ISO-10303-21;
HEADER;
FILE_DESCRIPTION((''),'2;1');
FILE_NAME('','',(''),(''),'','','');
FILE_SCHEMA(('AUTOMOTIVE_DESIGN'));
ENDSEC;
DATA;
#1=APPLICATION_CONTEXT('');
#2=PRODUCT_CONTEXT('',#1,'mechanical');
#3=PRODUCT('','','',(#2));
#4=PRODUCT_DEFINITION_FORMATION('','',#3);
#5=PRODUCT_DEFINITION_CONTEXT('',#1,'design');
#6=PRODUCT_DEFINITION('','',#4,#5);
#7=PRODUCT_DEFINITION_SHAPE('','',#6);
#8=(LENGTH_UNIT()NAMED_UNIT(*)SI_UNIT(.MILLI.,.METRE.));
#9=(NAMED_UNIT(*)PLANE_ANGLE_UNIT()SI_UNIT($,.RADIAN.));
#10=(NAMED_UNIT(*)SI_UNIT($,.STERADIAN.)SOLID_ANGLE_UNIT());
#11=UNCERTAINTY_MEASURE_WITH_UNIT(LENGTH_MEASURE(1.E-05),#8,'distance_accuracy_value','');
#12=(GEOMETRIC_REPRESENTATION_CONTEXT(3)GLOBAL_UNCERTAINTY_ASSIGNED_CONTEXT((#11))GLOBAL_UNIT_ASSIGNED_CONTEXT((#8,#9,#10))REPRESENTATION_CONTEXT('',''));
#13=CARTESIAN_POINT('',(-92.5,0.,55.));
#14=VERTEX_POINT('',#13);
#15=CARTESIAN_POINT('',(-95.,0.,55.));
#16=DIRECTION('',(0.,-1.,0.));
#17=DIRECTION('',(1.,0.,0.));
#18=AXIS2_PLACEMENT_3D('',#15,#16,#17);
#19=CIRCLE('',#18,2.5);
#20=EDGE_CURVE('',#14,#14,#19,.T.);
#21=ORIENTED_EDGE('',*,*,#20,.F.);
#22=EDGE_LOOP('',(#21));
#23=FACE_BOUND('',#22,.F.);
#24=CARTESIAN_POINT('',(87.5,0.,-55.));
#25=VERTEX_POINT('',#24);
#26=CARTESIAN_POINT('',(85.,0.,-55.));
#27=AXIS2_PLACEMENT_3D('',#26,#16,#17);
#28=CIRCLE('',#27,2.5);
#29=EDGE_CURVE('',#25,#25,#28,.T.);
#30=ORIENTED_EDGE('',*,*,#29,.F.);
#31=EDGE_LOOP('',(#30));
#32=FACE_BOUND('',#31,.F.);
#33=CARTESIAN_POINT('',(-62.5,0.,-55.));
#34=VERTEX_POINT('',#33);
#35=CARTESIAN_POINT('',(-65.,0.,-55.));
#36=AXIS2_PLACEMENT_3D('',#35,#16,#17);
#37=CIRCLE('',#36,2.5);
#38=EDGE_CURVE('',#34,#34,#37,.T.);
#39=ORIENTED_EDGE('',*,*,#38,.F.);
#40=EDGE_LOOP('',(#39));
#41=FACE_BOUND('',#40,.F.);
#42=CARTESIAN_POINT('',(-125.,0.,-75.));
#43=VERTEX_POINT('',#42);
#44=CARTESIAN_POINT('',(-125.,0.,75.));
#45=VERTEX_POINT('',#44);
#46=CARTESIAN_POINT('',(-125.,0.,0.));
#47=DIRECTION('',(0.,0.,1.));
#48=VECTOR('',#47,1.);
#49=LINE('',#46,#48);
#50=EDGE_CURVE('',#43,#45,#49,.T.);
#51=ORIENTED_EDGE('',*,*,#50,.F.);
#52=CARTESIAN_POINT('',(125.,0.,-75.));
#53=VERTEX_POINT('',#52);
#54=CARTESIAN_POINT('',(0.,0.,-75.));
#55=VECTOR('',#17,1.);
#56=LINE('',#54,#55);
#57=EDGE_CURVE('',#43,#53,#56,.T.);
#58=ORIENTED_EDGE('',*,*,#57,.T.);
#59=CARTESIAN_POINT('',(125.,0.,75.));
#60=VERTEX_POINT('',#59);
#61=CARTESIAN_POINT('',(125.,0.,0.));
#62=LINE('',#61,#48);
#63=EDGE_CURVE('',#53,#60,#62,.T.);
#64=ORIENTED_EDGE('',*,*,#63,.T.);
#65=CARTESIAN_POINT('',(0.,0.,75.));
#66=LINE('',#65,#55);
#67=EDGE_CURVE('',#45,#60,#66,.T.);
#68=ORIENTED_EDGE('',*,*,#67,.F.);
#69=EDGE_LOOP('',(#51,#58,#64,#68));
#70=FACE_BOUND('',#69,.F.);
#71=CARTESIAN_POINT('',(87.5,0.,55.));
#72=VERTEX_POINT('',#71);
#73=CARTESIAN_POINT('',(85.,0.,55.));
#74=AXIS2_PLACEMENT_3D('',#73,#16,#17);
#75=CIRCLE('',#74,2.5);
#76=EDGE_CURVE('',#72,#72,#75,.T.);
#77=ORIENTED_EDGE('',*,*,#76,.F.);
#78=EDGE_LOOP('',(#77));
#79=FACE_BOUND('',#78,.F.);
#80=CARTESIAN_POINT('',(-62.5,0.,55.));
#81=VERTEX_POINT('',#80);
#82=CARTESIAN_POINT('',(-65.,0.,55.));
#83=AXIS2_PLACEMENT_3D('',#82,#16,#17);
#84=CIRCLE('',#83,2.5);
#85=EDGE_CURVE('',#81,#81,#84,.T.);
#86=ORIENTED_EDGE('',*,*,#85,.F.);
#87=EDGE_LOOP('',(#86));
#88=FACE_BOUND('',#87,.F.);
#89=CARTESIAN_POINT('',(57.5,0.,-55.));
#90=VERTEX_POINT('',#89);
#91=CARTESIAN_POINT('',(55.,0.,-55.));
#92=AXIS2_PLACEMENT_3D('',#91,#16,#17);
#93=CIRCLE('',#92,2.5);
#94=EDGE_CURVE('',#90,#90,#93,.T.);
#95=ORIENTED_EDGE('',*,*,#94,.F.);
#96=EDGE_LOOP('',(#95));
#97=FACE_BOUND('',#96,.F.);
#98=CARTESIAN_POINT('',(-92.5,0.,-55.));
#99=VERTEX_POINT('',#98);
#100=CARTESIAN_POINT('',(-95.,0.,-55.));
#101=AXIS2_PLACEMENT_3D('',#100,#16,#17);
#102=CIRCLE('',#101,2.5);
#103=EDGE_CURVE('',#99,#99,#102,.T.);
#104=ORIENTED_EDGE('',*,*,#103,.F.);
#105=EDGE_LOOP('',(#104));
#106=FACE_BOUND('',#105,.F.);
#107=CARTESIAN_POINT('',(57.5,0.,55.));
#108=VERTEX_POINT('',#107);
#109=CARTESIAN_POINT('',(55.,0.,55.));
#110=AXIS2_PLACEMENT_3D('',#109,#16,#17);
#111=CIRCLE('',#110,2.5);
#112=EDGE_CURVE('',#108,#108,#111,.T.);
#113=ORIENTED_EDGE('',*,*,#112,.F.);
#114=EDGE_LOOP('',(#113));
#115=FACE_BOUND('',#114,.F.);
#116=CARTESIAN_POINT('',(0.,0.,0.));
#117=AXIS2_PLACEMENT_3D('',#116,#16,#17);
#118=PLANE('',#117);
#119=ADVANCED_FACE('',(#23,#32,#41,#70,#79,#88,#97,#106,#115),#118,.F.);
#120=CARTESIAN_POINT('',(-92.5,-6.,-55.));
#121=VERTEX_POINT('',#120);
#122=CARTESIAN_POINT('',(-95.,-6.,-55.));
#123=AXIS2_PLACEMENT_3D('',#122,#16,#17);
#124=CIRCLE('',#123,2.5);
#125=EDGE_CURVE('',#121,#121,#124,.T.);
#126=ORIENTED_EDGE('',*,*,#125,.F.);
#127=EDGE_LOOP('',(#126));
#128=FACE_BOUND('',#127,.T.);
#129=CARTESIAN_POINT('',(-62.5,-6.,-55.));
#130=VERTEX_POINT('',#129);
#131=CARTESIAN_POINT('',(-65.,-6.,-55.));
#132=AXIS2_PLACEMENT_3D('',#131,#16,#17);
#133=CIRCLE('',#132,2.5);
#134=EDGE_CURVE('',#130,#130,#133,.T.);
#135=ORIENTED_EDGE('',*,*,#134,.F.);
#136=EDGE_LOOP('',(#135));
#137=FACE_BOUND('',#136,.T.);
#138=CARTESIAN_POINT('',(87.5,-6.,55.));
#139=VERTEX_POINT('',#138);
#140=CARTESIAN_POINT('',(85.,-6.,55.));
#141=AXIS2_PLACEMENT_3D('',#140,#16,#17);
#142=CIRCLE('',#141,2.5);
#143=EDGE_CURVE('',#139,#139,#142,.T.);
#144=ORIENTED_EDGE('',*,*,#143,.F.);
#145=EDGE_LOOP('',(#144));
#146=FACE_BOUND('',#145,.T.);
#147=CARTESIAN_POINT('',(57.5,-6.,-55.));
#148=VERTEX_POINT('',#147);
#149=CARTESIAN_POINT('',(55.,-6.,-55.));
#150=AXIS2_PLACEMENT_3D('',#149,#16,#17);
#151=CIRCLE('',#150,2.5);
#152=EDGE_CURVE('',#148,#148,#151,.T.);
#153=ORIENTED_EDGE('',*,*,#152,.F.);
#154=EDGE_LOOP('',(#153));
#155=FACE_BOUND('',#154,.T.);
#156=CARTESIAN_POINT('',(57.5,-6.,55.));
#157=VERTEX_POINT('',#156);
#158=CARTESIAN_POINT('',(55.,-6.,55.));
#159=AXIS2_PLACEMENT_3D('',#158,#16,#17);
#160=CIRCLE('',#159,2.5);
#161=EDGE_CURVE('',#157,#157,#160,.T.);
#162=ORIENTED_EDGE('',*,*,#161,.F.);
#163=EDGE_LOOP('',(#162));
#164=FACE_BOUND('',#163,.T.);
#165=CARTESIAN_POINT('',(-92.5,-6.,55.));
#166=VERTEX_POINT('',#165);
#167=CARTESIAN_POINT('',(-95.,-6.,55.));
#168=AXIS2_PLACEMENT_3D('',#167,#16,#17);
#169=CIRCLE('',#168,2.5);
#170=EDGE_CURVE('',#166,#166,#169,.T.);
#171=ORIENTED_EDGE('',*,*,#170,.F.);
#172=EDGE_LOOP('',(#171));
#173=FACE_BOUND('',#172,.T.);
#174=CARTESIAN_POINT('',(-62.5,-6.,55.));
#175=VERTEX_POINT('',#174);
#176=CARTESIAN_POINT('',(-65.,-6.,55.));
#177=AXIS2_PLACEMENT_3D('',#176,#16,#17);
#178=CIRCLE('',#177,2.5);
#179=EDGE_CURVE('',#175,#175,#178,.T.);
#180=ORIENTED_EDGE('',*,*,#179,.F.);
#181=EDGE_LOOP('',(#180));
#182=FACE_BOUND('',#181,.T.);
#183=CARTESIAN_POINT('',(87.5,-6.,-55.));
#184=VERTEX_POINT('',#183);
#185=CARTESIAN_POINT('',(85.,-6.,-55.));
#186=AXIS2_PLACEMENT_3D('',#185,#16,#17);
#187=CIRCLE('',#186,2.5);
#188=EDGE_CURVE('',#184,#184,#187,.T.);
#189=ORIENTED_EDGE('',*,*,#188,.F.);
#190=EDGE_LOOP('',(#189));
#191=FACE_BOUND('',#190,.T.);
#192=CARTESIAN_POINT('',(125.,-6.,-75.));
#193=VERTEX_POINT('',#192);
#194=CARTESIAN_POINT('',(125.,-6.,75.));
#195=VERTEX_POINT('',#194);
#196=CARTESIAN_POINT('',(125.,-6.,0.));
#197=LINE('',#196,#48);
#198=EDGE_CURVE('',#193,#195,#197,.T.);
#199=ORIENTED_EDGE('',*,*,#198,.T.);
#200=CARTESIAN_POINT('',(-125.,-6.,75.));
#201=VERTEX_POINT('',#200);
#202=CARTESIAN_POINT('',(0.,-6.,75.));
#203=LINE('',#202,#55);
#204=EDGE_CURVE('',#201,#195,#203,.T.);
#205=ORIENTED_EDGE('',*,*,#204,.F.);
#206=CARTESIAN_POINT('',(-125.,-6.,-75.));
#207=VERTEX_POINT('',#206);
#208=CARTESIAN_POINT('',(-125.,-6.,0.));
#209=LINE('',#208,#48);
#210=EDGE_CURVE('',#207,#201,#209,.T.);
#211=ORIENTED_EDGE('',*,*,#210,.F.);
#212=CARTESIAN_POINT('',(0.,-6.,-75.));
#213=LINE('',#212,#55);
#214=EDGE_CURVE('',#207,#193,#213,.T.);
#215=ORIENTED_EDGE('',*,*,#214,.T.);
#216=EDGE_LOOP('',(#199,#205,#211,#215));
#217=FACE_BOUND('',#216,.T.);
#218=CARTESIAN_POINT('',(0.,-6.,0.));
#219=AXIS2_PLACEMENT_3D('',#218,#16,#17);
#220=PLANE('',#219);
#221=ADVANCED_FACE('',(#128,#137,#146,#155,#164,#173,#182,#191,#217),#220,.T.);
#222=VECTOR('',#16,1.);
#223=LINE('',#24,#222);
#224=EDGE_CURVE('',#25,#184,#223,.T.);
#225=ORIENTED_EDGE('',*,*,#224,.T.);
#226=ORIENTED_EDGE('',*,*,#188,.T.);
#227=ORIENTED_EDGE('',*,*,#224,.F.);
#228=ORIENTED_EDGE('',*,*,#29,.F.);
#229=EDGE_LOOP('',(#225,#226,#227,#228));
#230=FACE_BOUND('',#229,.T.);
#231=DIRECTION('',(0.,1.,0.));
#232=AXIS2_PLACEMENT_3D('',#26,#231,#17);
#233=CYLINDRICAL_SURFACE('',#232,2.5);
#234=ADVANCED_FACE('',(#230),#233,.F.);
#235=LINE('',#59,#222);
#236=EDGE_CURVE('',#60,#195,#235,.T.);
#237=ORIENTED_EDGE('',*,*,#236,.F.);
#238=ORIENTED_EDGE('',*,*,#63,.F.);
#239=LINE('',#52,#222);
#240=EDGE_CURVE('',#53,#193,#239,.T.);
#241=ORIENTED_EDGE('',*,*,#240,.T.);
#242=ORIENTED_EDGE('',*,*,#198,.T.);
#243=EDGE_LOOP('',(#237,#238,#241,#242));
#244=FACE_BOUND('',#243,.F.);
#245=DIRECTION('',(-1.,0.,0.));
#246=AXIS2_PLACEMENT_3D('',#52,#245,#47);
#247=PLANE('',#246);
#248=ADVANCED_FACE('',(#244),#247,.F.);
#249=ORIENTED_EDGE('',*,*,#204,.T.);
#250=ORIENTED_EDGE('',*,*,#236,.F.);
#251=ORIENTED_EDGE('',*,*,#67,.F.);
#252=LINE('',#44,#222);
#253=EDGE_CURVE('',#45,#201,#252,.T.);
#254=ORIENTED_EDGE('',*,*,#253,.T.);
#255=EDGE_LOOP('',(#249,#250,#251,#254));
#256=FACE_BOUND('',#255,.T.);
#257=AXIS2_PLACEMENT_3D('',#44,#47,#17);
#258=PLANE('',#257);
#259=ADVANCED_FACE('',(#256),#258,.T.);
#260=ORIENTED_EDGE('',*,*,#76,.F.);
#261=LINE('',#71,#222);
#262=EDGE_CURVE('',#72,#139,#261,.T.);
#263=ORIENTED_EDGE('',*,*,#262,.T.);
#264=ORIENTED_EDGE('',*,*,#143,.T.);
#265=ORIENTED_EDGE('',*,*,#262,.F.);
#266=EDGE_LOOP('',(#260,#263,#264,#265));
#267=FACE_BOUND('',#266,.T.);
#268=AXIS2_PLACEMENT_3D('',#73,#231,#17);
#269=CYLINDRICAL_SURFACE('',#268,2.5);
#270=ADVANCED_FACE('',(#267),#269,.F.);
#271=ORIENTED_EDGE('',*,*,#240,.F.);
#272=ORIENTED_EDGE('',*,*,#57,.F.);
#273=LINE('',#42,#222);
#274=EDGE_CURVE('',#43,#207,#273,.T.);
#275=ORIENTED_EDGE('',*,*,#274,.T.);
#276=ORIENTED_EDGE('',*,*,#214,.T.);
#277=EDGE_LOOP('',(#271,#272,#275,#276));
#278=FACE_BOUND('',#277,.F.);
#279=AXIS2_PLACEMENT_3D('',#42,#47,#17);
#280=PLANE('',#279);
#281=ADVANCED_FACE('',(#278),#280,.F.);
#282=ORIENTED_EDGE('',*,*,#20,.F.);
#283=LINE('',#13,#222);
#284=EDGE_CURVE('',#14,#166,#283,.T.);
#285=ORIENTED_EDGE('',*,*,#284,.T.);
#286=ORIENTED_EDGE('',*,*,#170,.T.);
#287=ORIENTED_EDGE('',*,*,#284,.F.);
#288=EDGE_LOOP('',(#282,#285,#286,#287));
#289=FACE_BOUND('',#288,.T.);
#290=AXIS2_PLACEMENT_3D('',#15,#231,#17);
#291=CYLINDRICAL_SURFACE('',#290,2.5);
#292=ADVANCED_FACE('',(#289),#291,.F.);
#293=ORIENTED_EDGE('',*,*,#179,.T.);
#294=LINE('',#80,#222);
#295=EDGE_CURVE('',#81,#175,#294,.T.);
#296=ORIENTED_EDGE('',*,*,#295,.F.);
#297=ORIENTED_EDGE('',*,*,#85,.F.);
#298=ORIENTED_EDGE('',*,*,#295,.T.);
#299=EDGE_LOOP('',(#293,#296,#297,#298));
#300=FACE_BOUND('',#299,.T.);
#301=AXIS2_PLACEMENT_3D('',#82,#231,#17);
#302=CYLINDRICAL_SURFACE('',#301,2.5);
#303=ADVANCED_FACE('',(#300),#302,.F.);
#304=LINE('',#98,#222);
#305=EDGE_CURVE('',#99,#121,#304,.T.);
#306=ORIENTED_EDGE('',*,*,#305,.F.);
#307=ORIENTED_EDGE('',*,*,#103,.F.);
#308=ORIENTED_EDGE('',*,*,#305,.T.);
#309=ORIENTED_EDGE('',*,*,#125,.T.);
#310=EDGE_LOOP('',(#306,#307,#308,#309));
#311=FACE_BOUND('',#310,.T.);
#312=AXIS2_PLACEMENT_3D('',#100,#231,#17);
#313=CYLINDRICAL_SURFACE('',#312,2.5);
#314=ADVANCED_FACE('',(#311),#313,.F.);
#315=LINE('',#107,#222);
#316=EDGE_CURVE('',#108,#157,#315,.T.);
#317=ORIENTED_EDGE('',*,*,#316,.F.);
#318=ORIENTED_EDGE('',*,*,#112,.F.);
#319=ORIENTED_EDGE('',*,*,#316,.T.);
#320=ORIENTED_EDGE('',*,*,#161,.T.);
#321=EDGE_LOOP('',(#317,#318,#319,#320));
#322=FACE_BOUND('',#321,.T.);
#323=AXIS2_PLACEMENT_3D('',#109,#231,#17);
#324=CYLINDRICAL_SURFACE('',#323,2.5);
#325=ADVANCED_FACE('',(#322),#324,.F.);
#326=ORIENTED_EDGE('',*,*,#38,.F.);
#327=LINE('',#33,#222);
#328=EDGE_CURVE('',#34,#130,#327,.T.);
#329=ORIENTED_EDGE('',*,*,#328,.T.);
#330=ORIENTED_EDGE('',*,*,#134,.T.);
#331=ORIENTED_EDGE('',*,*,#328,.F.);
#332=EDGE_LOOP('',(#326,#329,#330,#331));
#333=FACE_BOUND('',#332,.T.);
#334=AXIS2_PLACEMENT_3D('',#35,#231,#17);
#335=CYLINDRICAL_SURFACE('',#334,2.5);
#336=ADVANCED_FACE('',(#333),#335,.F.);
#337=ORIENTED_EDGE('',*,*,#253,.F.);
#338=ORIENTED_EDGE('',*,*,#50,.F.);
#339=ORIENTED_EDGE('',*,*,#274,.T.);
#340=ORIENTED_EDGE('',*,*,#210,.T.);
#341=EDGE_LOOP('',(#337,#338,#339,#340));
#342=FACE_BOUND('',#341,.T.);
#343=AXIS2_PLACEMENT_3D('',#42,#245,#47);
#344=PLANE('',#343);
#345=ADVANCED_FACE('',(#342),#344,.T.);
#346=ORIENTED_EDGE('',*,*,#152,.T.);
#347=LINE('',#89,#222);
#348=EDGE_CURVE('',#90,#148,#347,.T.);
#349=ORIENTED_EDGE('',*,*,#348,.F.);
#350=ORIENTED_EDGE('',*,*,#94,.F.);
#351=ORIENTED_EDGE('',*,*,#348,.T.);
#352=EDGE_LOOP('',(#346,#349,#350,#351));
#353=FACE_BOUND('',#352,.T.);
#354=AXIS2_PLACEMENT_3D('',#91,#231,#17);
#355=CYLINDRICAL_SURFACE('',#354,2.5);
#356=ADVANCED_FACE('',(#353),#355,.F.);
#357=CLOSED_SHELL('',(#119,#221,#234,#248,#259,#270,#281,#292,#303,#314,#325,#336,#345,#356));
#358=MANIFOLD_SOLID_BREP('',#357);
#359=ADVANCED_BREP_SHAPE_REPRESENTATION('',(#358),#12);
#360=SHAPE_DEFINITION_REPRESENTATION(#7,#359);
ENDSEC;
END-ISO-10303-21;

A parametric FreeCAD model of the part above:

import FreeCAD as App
import Part
import Sketcher
Q = App.Units.Quantity


def add_polygon(sketch, points):
    """Adds a closed chain of lines whose ends are joined by coincident constraints."""
    first, n = sketch.GeometryCount, len(points)
    for a, b in zip(points, points[1:] + points[:1]):
        sketch.addGeometry(Part.LineSegment(App.Vector(*a, 0), App.Vector(*b, 0)), False)
    for i in range(n):
        sketch.addConstraint(Sketcher.Constraint("Coincident", first + i, 2, first + (i + 1) % n, 1))

doc = App.newDocument("Part")
body = doc.addObject("PartDesign::Body", "Body")

# Sketch on XZ plane
sketch1 = body.newObject("Sketcher::SketchObject", "Sketch")
sketch1.AttachmentSupport = (doc.getObject("XZ_Plane"), [""])
sketch1.MapMode = "FlatFace"
add_polygon(sketch1, [(-125, 75), (-125, -75), (125, -75), (125, 75)])  # lines 0-3
sketch1.addGeometry(Part.Circle(App.Vector(-95, -55, 0), App.Vector(0, 0, 1), 2.5), False)  # 4
sketch1.addGeometry(Part.Circle(App.Vector(-65, -55, 0), App.Vector(0, 0, 1), 2.5), False)  # 5
sketch1.addGeometry(Part.Circle(App.Vector(55, -55, 0), App.Vector(0, 0, 1), 2.5), False)  # 6
sketch1.addGeometry(Part.Circle(App.Vector(85, -55, 0), App.Vector(0, 0, 1), 2.5), False)  # 7
sketch1.addGeometry(Part.Circle(App.Vector(-95, 55, 0), App.Vector(0, 0, 1), 2.5), False)  # 8
sketch1.addGeometry(Part.Circle(App.Vector(-65, 55, 0), App.Vector(0, 0, 1), 2.5), False)  # 9
sketch1.addGeometry(Part.Circle(App.Vector(55, 55, 0), App.Vector(0, 0, 1), 2.5), False)  # 10
sketch1.addGeometry(Part.Circle(App.Vector(85, 55, 0), App.Vector(0, 0, 1), 2.5), False)  # 11
sketch1.addConstraint([
    Sketcher.Constraint("Vertical", 0),
    Sketcher.Constraint("Horizontal", 1),
    Sketcher.Constraint("Vertical", 2),
    Sketcher.Constraint("Horizontal", 3),
    Sketcher.Constraint("Equal", 4, 5),
    Sketcher.Constraint("Equal", 5, 6),
    Sketcher.Constraint("Equal", 6, 7),
    Sketcher.Constraint("Equal", 7, 8),
    Sketcher.Constraint("Equal", 8, 9),
    Sketcher.Constraint("Equal", 9, 10),
    Sketcher.Constraint("Equal", 10, 11),
    Sketcher.Constraint("Symmetric", 0, 2, 2, 2, -1, 1),
    Sketcher.Constraint("Symmetric", 4, 3, 8, 3, -1),
    Sketcher.Constraint("Symmetric", 5, 3, 9, 3, -1),
    Sketcher.Constraint("Symmetric", 6, 3, 10, 3, -1),
    Sketcher.Constraint("Symmetric", 7, 3, 11, 3, -1),
    Sketcher.Constraint("Horizontal", 4, 3, 5, 3),
    Sketcher.Constraint("Horizontal", 5, 3, 6, 3),
    Sketcher.Constraint("Horizontal", 6, 3, 7, 3),
    Sketcher.Constraint("Diameter", 4, Q("5 mm")),
    Sketcher.Constraint("DistanceX", 1, 1, 1, 2, Q("250 mm")),
    Sketcher.Constraint("DistanceY", 0, 2, 0, 1, Q("150 mm")),
    Sketcher.Constraint("DistanceX", 4, 3, -1, 1, Q("95 mm")),
    Sketcher.Constraint("DistanceY", 4, 3, -1, 1, Q("55 mm")),
    Sketcher.Constraint("DistanceX", 5, 3, -1, 1, Q("65 mm")),
    Sketcher.Constraint("DistanceX", -1, 1, 6, 3, Q("55 mm")),
    Sketcher.Constraint("DistanceX", -1, 1, 7, 3, Q("85 mm")),
])
pad1 = body.newObject("PartDesign::Pad", "Pad")
pad1.Profile = sketch1
pad1.Length = 6

doc.recompute()
